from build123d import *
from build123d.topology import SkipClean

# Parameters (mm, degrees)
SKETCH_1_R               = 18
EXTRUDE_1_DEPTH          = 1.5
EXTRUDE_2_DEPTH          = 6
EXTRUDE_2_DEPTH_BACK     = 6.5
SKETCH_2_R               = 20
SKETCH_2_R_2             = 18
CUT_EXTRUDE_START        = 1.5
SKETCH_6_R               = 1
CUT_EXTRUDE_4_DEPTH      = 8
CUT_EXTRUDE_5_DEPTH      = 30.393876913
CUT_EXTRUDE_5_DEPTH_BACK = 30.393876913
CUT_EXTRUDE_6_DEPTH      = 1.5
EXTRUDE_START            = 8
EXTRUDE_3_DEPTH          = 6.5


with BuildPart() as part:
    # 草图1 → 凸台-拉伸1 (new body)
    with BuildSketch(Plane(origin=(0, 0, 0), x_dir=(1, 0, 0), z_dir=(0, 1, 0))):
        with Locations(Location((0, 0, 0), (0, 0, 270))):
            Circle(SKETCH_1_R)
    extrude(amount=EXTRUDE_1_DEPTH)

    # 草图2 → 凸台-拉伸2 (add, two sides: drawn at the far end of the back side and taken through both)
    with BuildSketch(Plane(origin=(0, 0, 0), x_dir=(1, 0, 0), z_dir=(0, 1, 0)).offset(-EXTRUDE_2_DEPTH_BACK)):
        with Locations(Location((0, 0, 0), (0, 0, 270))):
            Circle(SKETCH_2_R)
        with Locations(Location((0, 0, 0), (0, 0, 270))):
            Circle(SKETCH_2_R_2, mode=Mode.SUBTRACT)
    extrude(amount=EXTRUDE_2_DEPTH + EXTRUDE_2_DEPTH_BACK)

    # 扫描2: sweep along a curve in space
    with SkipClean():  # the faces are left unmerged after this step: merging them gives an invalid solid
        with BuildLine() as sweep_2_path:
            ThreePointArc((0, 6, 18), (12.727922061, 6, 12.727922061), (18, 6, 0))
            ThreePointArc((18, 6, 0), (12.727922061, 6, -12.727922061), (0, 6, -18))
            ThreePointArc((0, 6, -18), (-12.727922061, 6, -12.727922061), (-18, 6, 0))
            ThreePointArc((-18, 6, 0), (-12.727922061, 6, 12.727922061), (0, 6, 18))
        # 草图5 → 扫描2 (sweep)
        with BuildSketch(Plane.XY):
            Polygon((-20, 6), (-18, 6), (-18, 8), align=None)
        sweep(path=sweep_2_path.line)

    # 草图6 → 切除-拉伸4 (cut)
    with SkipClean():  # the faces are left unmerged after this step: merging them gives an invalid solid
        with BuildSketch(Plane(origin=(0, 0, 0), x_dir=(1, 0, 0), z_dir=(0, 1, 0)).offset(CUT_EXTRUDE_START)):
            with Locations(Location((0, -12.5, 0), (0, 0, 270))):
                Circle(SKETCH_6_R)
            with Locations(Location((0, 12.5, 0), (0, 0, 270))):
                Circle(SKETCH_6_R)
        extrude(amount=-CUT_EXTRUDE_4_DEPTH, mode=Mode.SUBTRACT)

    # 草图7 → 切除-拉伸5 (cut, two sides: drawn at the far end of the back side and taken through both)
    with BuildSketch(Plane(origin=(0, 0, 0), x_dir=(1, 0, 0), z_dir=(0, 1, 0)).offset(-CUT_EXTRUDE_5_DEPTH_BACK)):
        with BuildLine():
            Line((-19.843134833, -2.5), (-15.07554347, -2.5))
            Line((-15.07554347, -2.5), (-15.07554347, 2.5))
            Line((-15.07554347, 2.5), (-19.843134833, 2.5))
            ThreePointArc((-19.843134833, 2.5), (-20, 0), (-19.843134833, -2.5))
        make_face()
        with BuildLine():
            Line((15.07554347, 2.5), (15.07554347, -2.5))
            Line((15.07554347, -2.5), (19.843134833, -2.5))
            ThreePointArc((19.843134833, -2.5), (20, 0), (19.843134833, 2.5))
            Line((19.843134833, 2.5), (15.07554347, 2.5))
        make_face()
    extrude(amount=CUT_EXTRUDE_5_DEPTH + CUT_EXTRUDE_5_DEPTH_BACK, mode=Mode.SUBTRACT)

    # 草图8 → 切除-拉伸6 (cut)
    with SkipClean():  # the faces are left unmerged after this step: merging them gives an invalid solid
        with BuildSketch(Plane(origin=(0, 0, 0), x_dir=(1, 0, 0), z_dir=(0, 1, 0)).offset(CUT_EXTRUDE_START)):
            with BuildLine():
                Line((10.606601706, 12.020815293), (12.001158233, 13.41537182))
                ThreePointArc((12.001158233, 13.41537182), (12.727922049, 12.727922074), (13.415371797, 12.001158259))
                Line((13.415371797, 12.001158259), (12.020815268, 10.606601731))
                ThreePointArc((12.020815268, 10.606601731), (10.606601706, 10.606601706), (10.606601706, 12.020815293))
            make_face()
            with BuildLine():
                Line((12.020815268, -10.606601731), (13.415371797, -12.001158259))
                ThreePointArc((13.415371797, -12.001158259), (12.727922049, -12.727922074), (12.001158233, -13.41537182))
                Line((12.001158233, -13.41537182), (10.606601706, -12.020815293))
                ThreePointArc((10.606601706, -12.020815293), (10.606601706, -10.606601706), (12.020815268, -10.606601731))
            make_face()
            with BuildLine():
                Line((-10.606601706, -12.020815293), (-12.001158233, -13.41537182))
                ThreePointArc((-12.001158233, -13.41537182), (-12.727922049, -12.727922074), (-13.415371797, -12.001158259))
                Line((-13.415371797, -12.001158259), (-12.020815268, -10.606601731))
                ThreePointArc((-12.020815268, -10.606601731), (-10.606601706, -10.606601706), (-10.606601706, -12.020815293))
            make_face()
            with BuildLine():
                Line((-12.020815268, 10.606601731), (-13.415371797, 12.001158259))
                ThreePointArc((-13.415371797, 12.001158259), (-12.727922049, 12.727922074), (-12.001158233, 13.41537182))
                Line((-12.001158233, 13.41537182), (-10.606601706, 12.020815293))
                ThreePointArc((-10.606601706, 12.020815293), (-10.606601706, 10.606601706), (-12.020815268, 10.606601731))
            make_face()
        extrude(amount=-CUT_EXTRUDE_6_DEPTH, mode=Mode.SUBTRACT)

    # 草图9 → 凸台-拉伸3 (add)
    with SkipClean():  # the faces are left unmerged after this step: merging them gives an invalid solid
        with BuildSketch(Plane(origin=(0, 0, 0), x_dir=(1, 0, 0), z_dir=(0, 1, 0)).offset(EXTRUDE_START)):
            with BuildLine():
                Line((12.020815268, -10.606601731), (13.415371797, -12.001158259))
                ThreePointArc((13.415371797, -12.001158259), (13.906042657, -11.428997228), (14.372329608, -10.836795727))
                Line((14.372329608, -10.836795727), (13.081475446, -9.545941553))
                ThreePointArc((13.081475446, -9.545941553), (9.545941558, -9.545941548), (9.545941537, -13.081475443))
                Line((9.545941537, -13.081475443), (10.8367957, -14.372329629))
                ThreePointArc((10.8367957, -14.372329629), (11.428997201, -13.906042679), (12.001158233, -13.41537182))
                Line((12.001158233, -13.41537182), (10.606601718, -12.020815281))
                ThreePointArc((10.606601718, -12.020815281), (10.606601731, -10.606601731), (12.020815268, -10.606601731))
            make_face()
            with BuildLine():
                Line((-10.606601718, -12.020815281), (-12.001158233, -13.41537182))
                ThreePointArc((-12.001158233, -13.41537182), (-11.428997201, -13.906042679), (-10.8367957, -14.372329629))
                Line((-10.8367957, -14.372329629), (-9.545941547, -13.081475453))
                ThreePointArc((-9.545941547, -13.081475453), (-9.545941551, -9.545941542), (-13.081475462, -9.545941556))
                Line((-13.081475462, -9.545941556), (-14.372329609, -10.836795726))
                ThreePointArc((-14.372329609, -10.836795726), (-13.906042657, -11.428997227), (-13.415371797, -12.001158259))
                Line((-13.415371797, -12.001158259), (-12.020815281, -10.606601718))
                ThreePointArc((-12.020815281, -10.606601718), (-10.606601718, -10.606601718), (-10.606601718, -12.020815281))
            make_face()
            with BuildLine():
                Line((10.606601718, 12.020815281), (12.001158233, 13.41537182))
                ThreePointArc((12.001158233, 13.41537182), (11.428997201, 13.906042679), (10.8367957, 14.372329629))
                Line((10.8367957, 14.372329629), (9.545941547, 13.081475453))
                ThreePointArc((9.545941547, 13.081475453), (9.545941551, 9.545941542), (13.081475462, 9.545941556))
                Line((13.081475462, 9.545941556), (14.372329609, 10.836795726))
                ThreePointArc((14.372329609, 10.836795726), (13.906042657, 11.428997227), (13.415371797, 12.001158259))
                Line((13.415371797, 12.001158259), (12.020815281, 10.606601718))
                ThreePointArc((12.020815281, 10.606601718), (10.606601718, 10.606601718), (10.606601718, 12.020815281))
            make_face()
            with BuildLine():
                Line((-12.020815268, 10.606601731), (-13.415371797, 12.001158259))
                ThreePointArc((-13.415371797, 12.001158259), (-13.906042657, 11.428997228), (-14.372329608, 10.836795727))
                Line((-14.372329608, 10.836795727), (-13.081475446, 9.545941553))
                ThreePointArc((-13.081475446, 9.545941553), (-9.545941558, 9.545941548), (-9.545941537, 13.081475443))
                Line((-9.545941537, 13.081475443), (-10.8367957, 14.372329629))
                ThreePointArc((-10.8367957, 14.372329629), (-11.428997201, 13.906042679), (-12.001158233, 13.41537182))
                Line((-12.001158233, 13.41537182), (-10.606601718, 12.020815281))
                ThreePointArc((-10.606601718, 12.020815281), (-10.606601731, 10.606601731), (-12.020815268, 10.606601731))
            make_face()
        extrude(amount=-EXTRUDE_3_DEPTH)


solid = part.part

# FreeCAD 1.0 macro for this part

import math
import FreeCAD as App
import Part
import Sketcher
from FreeCAD import Vector
Q = App.Units.Quantity


def add_polygon(sketch, points):
    """Adds a closed chain of lines whose ends are joined by coincident constraints."""
    first, n = sketch.GeometryCount, len(points)
    for a, b in zip(points, points[1:] + points[:1]):
        sketch.addGeometry(Part.LineSegment(App.Vector(*a, 0), App.Vector(*b, 0)), False)
    for i in range(n):
        sketch.addConstraint(Sketcher.Constraint("Coincident", first + i, 2, first + (i + 1) % n, 1))

doc = App.newDocument("Part")
body = doc.addObject("PartDesign::Body", "Body")

# Sketch on XZ plane
sketch1 = body.newObject("Sketcher::SketchObject", "Sketch")
sketch1.AttachmentSupport = (doc.getObject("XZ_Plane"), [""])
sketch1.MapMode = "FlatFace"
sketch1.addGeometry(Part.Circle(Vector(0, 0, 0), Vector(0, 0, 1), 18), False)
sketch1.addConstraint([
    Sketcher.Constraint("Coincident", 0, 3, -1, 1),
    Sketcher.Constraint("Diameter", 0, Q("36 mm")),
])
pad1 = body.newObject("PartDesign::Pad", "Pad")
pad1.Profile = sketch1
pad1.Length = 1.5
pad1.Reversed = True

# Sketch on XZ plane
sketch2 = body.newObject("Sketcher::SketchObject", "Sketch001")
sketch2.AttachmentSupport = (doc.getObject("XZ_Plane"), [""])
sketch2.MapMode = "FlatFace"
sketch2.addGeometry([
    Part.Circle(Vector(0, 0, 0), Vector(0, 0, 1), 20),
    Part.Circle(Vector(0, 0, 0), Vector(0, 0, 1), 18),
], False)
sketch2.addConstraint([
    Sketcher.Constraint("Coincident", 0, 3, -1, 1),
    Sketcher.Constraint("Coincident", 1, 3, -1, 1),
    Sketcher.Constraint("Diameter", 0, Q("40 mm")),
    Sketcher.Constraint("Diameter", 1, Q("36 mm")),
])
pad2 = body.newObject("PartDesign::Pad", "Pad001")
pad2.Profile = sketch2
pad2.Type = "TwoLengths"
pad2.Length = 6
pad2.Length2 = 6.5
pad2.Reversed = True

# Sketch on XY plane
sketch3 = body.newObject("Sketcher::SketchObject", "Sketch002")
sketch3.AttachmentSupport = (doc.getObject("XY_Plane"), [""])
sketch3.MapMode = "FlatFace"
add_polygon(sketch3, [(-20, 6), (-18, 6), (-18, 8)])  # lines 0-2
sketch3.addConstraint([
    Sketcher.Constraint("Horizontal", 0),
    Sketcher.Constraint("Vertical", 1),
    Sketcher.Constraint("Equal", 0, 1),
    Sketcher.Constraint("DistanceX", 0, 1, 0, 2, Q("2 mm")),
    Sketcher.Constraint("DistanceX", 0, 2, -1, 1, Q("18 mm")),
    Sketcher.Constraint("DistanceY", -1, 1, 0, 2, Q("6 mm")),
])

# Sketch on XZ plane
sketch4 = body.newObject("Sketcher::SketchObject", "Sketch003")
sketch4.AttachmentSupport = (doc.getObject("XZ_Plane"), [""])
sketch4.MapMode = "FlatFace"
sketch4.AttachmentOffset = App.Placement(Vector(0, 0, -6), App.Rotation())
sketch4.addGeometry([
    Part.ArcOfCircle(Part.Circle(Vector(0, 0, 0), Vector(0, 0, 1), 18), math.radians(0), math.radians(90)),
    Part.ArcOfCircle(Part.Circle(Vector(0, 0, 0), Vector(0, 0, 1), 18), math.radians(-90), math.radians(0)),
    Part.ArcOfCircle(Part.Circle(Vector(0, 0, 0), Vector(0, 0, 1), 18), math.radians(-180), math.radians(-90)),
    Part.ArcOfCircle(Part.Circle(Vector(0, 0, 0), Vector(0, 0, 1), 18), math.radians(90), math.radians(180)),
], False)
sketch4.addConstraint([
    Sketcher.Constraint("Tangent", 0, 1, 1, 2),
    Sketcher.Constraint("Tangent", 1, 1, 2, 2),
    Sketcher.Constraint("Tangent", 2, 1, 3, 2),
    Sketcher.Constraint("Tangent", 3, 1, 0, 2),
    Sketcher.Constraint("Coincident", 0, 3, -1, 1),
    Sketcher.Constraint("Equal", 0, 1),
    Sketcher.Constraint("PointOnObject", 0, 1, -1),
    Sketcher.Constraint("PointOnObject", 1, 1, -2),
    Sketcher.Constraint("PointOnObject", 2, 1, -1),
    Sketcher.Constraint("PointOnObject", 3, 1, -2),
    Sketcher.Constraint("Radius", 0, Q("18 mm")),
])
doc.recompute()

additivepipe = body.newObject("PartDesign::AdditivePipe", "AdditivePipe")
additivepipe.Profile = sketch3
additivepipe.Spine = (sketch4, ["Edge1", "Edge2", "Edge3", "Edge4"])

# Sketch on XZ plane
sketch5 = body.newObject("Sketcher::SketchObject", "Sketch004")
sketch5.AttachmentSupport = (doc.getObject("XZ_Plane"), [""])
sketch5.MapMode = "FlatFace"
sketch5.AttachmentOffset = App.Placement(Vector(0, 0, -1.5), App.Rotation())
sketch5.addGeometry([
    Part.Circle(Vector(0, 12.5, 0), Vector(0, 0, 1), 1),
    Part.Circle(Vector(0, -12.5, 0), Vector(0, 0, 1), 1),
], False)
sketch5.addConstraint([
    Sketcher.Constraint("Equal", 0, 1),
    Sketcher.Constraint("Symmetric", 0, 3, 1, 3, -1, 1),
    Sketcher.Constraint("PointOnObject", 0, 3, -2),
    Sketcher.Constraint("Diameter", 0, Q("2 mm")),
    Sketcher.Constraint("DistanceY", 1, 3, 0, 3, Q("25 mm")),
])
pocket1 = body.newObject("PartDesign::Pocket", "Pocket")
pocket1.Profile = sketch5
pocket1.Length = 8
pocket1.Reversed = True

# Sketch on XZ plane
sketch6 = body.newObject("Sketcher::SketchObject", "Sketch005")
sketch6.AttachmentSupport = (doc.getObject("XZ_Plane"), [""])
sketch6.MapMode = "FlatFace"
sketch6.addGeometry([
    Part.LineSegment(Vector(-19.843135, 2.5, 0), Vector(-15.075543, 2.5, 0)),  # 0
    Part.LineSegment(Vector(-15.075543, 2.5, 0), Vector(-15.075543, -2.5, 0)),  # 1
    Part.LineSegment(Vector(-15.075543, -2.5, 0), Vector(-19.843135, -2.5, 0)),  # 2
    Part.ArcOfCircle(Part.Circle(Vector(0, 0, 0), Vector(0, 0, 1), 20), math.radians(172.819244), math.radians(187.180756)),  # 3
    Part.LineSegment(Vector(15.075543, -2.5, 0), Vector(15.075543, 2.5, 0)),  # 4
    Part.LineSegment(Vector(15.075543, 2.5, 0), Vector(19.843135, 2.5, 0)),  # 5
    Part.ArcOfCircle(Part.Circle(Vector(0, 0, 0), Vector(0, 0, 1), 20), math.radians(-7.180756), math.radians(7.180756)),  # 6
    Part.LineSegment(Vector(19.843135, -2.5, 0), Vector(15.075543, -2.5, 0)),  # 7
], False)
sketch6.addConstraint([
    Sketcher.Constraint("Coincident", 0, 2, 1, 1),
    Sketcher.Constraint("Coincident", 1, 2, 2, 1),
    Sketcher.Constraint("Coincident", 2, 2, 3, 2),
    Sketcher.Constraint("Coincident", 3, 1, 0, 1),
    Sketcher.Constraint("Coincident", 4, 2, 5, 1),
    Sketcher.Constraint("Coincident", 5, 2, 6, 2),
    Sketcher.Constraint("Coincident", 6, 1, 7, 1),
    Sketcher.Constraint("Coincident", 7, 2, 4, 1),
    Sketcher.Constraint("Horizontal", 0),
    Sketcher.Constraint("Vertical", 1),
    Sketcher.Constraint("Horizontal", 2),
    Sketcher.Constraint("Vertical", 4),
    Sketcher.Constraint("Horizontal", 5),
    Sketcher.Constraint("Horizontal", 7),
    Sketcher.Constraint("Coincident", 3, 3, -1, 1),
    Sketcher.Constraint("Coincident", 6, 3, -1, 1),
    Sketcher.Constraint("Equal", 3, 6),
    Sketcher.Constraint("Symmetric", 1, 2, 4, 2, -1, 1),
    Sketcher.Constraint("Horizontal", 3, 1, 4, 2),
    Sketcher.Constraint("Horizontal", 2, 2, 6, 1),
    Sketcher.Constraint("Radius", 3, Q("20 mm")),
    Sketcher.Constraint("DistanceY", 1, 2, 1, 1, Q("5 mm")),
    Sketcher.Constraint("DistanceX", 0, 1, 0, 2, Q("4.767591 mm")),
])
pocket2 = body.newObject("PartDesign::Pocket", "Pocket001")
pocket2.Profile = sketch6
pocket2.Type = "ThroughAll"
pocket2.Midplane = True

# Sketch on XZ plane
sketch7 = body.newObject("Sketcher::SketchObject", "Sketch006")
sketch7.AttachmentSupport = (doc.getObject("XZ_Plane"), [""])
sketch7.MapMode = "FlatFace"
sketch7.AttachmentOffset = App.Placement(Vector(0, 0, -1.5), App.Rotation())
sketch7.addGeometry([
    Part.LineSegment(Vector(12.001158, -13.415372, 0), Vector(10.606602, -12.020815, 0)),  # 0
    Part.ArcOfCircle(Part.Circle(Vector(11.313708, -11.313708, 0), Vector(0, 0, 1), 1), math.radians(44.999999), math.radians(225.000001)),  # 1
    Part.LineSegment(Vector(12.020815, -10.606602, 0), Vector(13.415372, -12.001158, 0)),  # 2
    Part.ArcOfCircle(Part.Circle(Vector(0, 0, 0), Vector(0, 0, 1), 18), math.radians(-48.184739), math.radians(-41.815262)),  # 3
    Part.LineSegment(Vector(13.415372, 12.001158, 0), Vector(12.020815, 10.606602, 0)),  # 4
    Part.ArcOfCircle(Part.Circle(Vector(11.313708, 11.313708, 0), Vector(0, 0, 1), 1), math.radians(134.999999), math.radians(315.000001)),  # 5
    Part.LineSegment(Vector(10.606602, 12.020815, 0), Vector(12.001158, 13.415372, 0)),  # 6
    Part.ArcOfCircle(Part.Circle(Vector(0, 0, 0), Vector(0, 0, 1), 18), math.radians(41.815262), math.radians(48.184739)),  # 7
    Part.LineSegment(Vector(-12.001158, 13.415372, 0), Vector(-10.606602, 12.020815, 0)),  # 8
    Part.ArcOfCircle(Part.Circle(Vector(-11.313708, 11.313708, 0), Vector(0, 0, 1), 1), math.radians(-135.000001), math.radians(45.000001)),  # 9
    Part.LineSegment(Vector(-12.020815, 10.606602, 0), Vector(-13.415372, 12.001158, 0)),  # 10
    Part.ArcOfCircle(Part.Circle(Vector(0, 0, 0), Vector(0, 0, 1), 18), math.radians(131.815261), math.radians(138.184738)),  # 11
    Part.LineSegment(Vector(-13.415372, -12.001158, 0), Vector(-12.020815, -10.606602, 0)),  # 12
    Part.ArcOfCircle(Part.Circle(Vector(-11.313708, -11.313708, 0), Vector(0, 0, 1), 1), math.radians(-45.000001), math.radians(135.000001)),  # 13
    Part.LineSegment(Vector(-10.606602, -12.020815, 0), Vector(-12.001158, -13.415372, 0)),  # 14
    Part.ArcOfCircle(Part.Circle(Vector(0, 0, 0), Vector(0, 0, 1), 18), math.radians(-138.184738), math.radians(-131.815261)),  # 15
], False)
sketch7.addConstraint([
    Sketcher.Constraint("Tangent", 0, 2, 1, 2),
    Sketcher.Constraint("Tangent", 1, 1, 2, 1),
    Sketcher.Constraint("Coincident", 2, 2, 3, 2),
    Sketcher.Constraint("Coincident", 3, 1, 0, 1),
    Sketcher.Constraint("Tangent", 4, 2, 5, 2),
    Sketcher.Constraint("Tangent", 5, 1, 6, 1),
    Sketcher.Constraint("Coincident", 6, 2, 7, 2),
    Sketcher.Constraint("Coincident", 7, 1, 4, 1),
    Sketcher.Constraint("Tangent", 8, 2, 9, 2),
    Sketcher.Constraint("Tangent", 9, 1, 10, 1),
    Sketcher.Constraint("Coincident", 10, 2, 11, 2),
    Sketcher.Constraint("Coincident", 11, 1, 8, 1),
    Sketcher.Constraint("Tangent", 12, 2, 13, 2),
    Sketcher.Constraint("Tangent", 13, 1, 14, 1),
    Sketcher.Constraint("Coincident", 14, 2, 15, 2),
    Sketcher.Constraint("Coincident", 15, 1, 12, 1),
    Sketcher.Constraint("Coincident", 3, 3, -1, 1),
    Sketcher.Constraint("Coincident", 7, 3, -1, 1),
    Sketcher.Constraint("Coincident", 11, 3, -1, 1),
    Sketcher.Constraint("Coincident", 15, 3, -1, 1),
    Sketcher.Constraint("Equal", 1, 5),
    Sketcher.Constraint("Equal", 3, 7),
    Sketcher.Constraint("Equal", 5, 9),
    Sketcher.Constraint("Equal", 7, 11),
    Sketcher.Constraint("Equal", 9, 13),
    Sketcher.Constraint("Equal", 11, 15),
    Sketcher.Constraint("Symmetric", 1, 3, 9, 3, -1, 1),
    Sketcher.Constraint("Symmetric", 5, 3, 13, 3, -1, 1),
    Sketcher.Constraint("Symmetric", 5, 3, 9, 3, -2),
    Sketcher.Constraint("Parallel", 0, 2),
    Sketcher.Constraint("Perpendicular", 2, 4),
    Sketcher.Constraint("Parallel", 4, 6),
    Sketcher.Constraint("Perpendicular", 6, 8),
    Sketcher.Constraint("Parallel", 8, 10),
    Sketcher.Constraint("Perpendicular", 10, 12),
    Sketcher.Constraint("Parallel", 12, 14),
    Sketcher.Constraint("Horizontal", 5, 1, 8, 2),
    Sketcher.Constraint("Equal", 0, 2),
    Sketcher.Constraint("Radius", 1, Q("1 mm")),
    Sketcher.Constraint("Radius", 3, Q("18 mm")),
    Sketcher.Constraint("Distance", 0, Q("1.972201 mm")),
])
pocket3 = body.newObject("PartDesign::Pocket", "Pocket002")
pocket3.Profile = sketch7
pocket3.Length = 1.5
pocket3.Reversed = True

# Sketch on XZ plane
sketch8 = body.newObject("Sketcher::SketchObject", "Sketch007")
sketch8.AttachmentSupport = (doc.getObject("XZ_Plane"), [""])
sketch8.MapMode = "FlatFace"
sketch8.AttachmentOffset = App.Placement(Vector(0, 0, -8), App.Rotation())
sketch8.addGeometry([
    Part.LineSegment(Vector(12.020815, 10.606602, 0), Vector(13.415372, 12.001158, 0)),  # 0
    Part.ArcOfCircle(Part.Circle(Vector(0, 0, 0), Vector(0, 0, 1), 17.999999), math.radians(37.016444), math.radians(41.815262)),  # 1
    Part.LineSegment(Vector(14.37233, 10.836796, 0), Vector(13.081475, 9.545942, 0)),  # 2
    Part.ArcOfCircle(Part.Circle(Vector(11.313709, 11.313709, 0), Vector(0, 0, 1), 2.5), math.radians(135), math.radians(315)),  # 3
    Part.LineSegment(Vector(9.545942, 13.081475, 0), Vector(10.836796, 14.37233, 0)),  # 4
    Part.ArcOfCircle(Part.Circle(Vector(0, 0, 0), Vector(0, 0, 1), 18), math.radians(48.184739), math.radians(52.983556)),  # 5
    Part.LineSegment(Vector(12.001158, 13.415372, 0), Vector(10.606602, 12.020815, 0)),  # 6
    Part.ArcOfCircle(Part.Circle(Vector(11.313708, 11.313709, 0), Vector(0, 0, 1), 1), math.radians(135), math.radians(315)),  # 7
    Part.LineSegment(Vector(-10.606602, 12.020815, 0), Vector(-12.001158, 13.415372, 0)),  # 8
    Part.ArcOfCircle(Part.Circle(Vector(0, 0, 0), Vector(0, 0, 1), 18), math.radians(127.016444), math.radians(131.815261)),  # 9
    Part.LineSegment(Vector(-10.836796, 14.37233, 0), Vector(-9.545942, 13.081475, 0)),  # 10
    Part.ArcOfCircle(Part.Circle(Vector(-11.313708, 11.313708, 0), Vector(0, 0, 1), 2.5), math.radians(-135), math.radians(45)),  # 11
    Part.LineSegment(Vector(-13.081475, 9.545942, 0), Vector(-14.37233, 10.836796, 0)),  # 12
    Part.ArcOfCircle(Part.Circle(Vector(0, 0, 0), Vector(0, 0, 1), 18), math.radians(138.184739), math.radians(142.983556)),  # 13
    Part.LineSegment(Vector(-13.415372, 12.001158, 0), Vector(-12.020815, 10.606602, 0)),  # 14
    Part.ArcOfCircle(Part.Circle(Vector(-11.313709, 11.313709, 0), Vector(0, 0, 1), 1), math.radians(-135), math.radians(45)),  # 15
    Part.LineSegment(Vector(10.606602, -12.020815, 0), Vector(12.001158, -13.415372, 0)),  # 16
    Part.ArcOfCircle(Part.Circle(Vector(0, 0, 0), Vector(0, 0, 1), 18), math.radians(-52.983556), math.radians(-48.184739)),  # 17
    Part.LineSegment(Vector(10.836796, -14.37233, 0), Vector(9.545942, -13.081475, 0)),  # 18
    Part.ArcOfCircle(Part.Circle(Vector(11.313708, -11.313708, 0), Vector(0, 0, 1), 2.5), math.radians(45), math.radians(225)),  # 19
    Part.LineSegment(Vector(13.081475, -9.545942, 0), Vector(14.37233, -10.836796, 0)),  # 20
    Part.ArcOfCircle(Part.Circle(Vector(0, 0, 0), Vector(0, 0, 1), 18), math.radians(-41.815261), math.radians(-37.016444)),  # 21
    Part.LineSegment(Vector(13.415372, -12.001158, 0), Vector(12.020815, -10.606602, 0)),  # 22
    Part.ArcOfCircle(Part.Circle(Vector(11.313709, -11.313709, 0), Vector(0, 0, 1), 1), math.radians(45), math.radians(225)),  # 23
    Part.LineSegment(Vector(-12.020815, -10.606602, 0), Vector(-13.415372, -12.001158, 0)),  # 24
    Part.ArcOfCircle(Part.Circle(Vector(0, 0, 0), Vector(0, 0, 1), 17.999999), math.radians(-142.983556), math.radians(-138.184738)),  # 25
    Part.LineSegment(Vector(-14.37233, -10.836796, 0), Vector(-13.081475, -9.545942, 0)),  # 26
    Part.ArcOfCircle(Part.Circle(Vector(-11.313709, -11.313709, 0), Vector(0, 0, 1), 2.5), math.radians(-45), math.radians(135)),  # 27
    Part.LineSegment(Vector(-9.545942, -13.081475, 0), Vector(-10.836796, -14.37233, 0)),  # 28
    Part.ArcOfCircle(Part.Circle(Vector(0, 0, 0), Vector(0, 0, 1), 18), math.radians(-131.815261), math.radians(-127.016444)),  # 29
    Part.LineSegment(Vector(-12.001158, -13.415372, 0), Vector(-10.606602, -12.020815, 0)),  # 30
    Part.ArcOfCircle(Part.Circle(Vector(-11.313708, -11.313709, 0), Vector(0, 0, 1), 1), math.radians(-45), math.radians(135)),  # 31
], False)
sketch8.addConstraint([
    Sketcher.Constraint("Coincident", 0, 2, 1, 2),
    Sketcher.Constraint("Coincident", 1, 1, 2, 1),
    Sketcher.Constraint("Tangent", 2, 2, 3, 2),
    Sketcher.Constraint("Tangent", 3, 1, 4, 1),
    Sketcher.Constraint("Coincident", 4, 2, 5, 2),
    Sketcher.Constraint("Coincident", 5, 1, 6, 1),
    Sketcher.Constraint("Tangent", 6, 2, 7, 1),
    Sketcher.Constraint("Tangent", 7, 2, 0, 1),
    Sketcher.Constraint("Coincident", 8, 2, 9, 2),
    Sketcher.Constraint("Coincident", 9, 1, 10, 1),
    Sketcher.Constraint("Tangent", 10, 2, 11, 2),
    Sketcher.Constraint("Tangent", 11, 1, 12, 1),
    Sketcher.Constraint("Coincident", 12, 2, 13, 2),
    Sketcher.Constraint("Coincident", 13, 1, 14, 1),
    Sketcher.Constraint("Tangent", 14, 2, 15, 1),
    Sketcher.Constraint("Tangent", 15, 2, 8, 1),
    Sketcher.Constraint("Coincident", 16, 2, 17, 2),
    Sketcher.Constraint("Coincident", 17, 1, 18, 1),
    Sketcher.Constraint("Tangent", 18, 2, 19, 2),
    Sketcher.Constraint("Tangent", 19, 1, 20, 1),
    Sketcher.Constraint("Coincident", 20, 2, 21, 2),
    Sketcher.Constraint("Coincident", 21, 1, 22, 1),
    Sketcher.Constraint("Tangent", 22, 2, 23, 1),
    Sketcher.Constraint("Tangent", 23, 2, 16, 1),
    Sketcher.Constraint("Coincident", 24, 2, 25, 2),
    Sketcher.Constraint("Coincident", 25, 1, 26, 1),
    Sketcher.Constraint("Tangent", 26, 2, 27, 2),
    Sketcher.Constraint("Tangent", 27, 1, 28, 1),
    Sketcher.Constraint("Coincident", 28, 2, 29, 2),
    Sketcher.Constraint("Coincident", 29, 1, 30, 1),
    Sketcher.Constraint("Tangent", 30, 2, 31, 1),
    Sketcher.Constraint("Tangent", 31, 2, 24, 1),
    Sketcher.Constraint("Coincident", 1, 3, -1, 1),
    Sketcher.Constraint("Coincident", 5, 3, -1, 1),
    Sketcher.Constraint("Coincident", 9, 3, -1, 1),
    Sketcher.Constraint("Coincident", 13, 3, -1, 1),
    Sketcher.Constraint("Coincident", 17, 3, -1, 1),
    Sketcher.Constraint("Coincident", 21, 3, -1, 1),
    Sketcher.Constraint("Coincident", 25, 3, -1, 1),
    Sketcher.Constraint("Coincident", 29, 3, -1, 1),
    Sketcher.Constraint("Coincident", 7, 3, 3, 3),
    Sketcher.Constraint("Coincident", 15, 3, 11, 3),
    Sketcher.Constraint("Coincident", 23, 3, 19, 3),
    Sketcher.Constraint("Coincident", 31, 3, 27, 3),
    Sketcher.Constraint("Equal", 1, 5),
    Sketcher.Constraint("Equal", 5, 9),
    Sketcher.Constraint("Equal", 3, 11),
    Sketcher.Constraint("Equal", 9, 13),
    Sketcher.Constraint("Equal", 7, 15),
    Sketcher.Constraint("Equal", 13, 17),
    Sketcher.Constraint("Equal", 11, 19),
    Sketcher.Constraint("Equal", 17, 21),
    Sketcher.Constraint("Equal", 15, 23),
    Sketcher.Constraint("Equal", 21, 25),
    Sketcher.Constraint("Equal", 19, 27),
    Sketcher.Constraint("Equal", 25, 29),
    Sketcher.Constraint("Equal", 23, 31),
    Sketcher.Constraint("Symmetric", 11, 3, 19, 3, -1, 1),
    Sketcher.Constraint("Symmetric", 3, 3, 27, 3, -1, 1),
    Sketcher.Constraint("Symmetric", 3, 3, 11, 3, -2),
    Sketcher.Constraint("Parallel", 0, 2),
    Sketcher.Constraint("Parallel", 2, 4),
    Sketcher.Constraint("Parallel", 4, 6),
    Sketcher.Constraint("Perpendicular", 6, 8),
    Sketcher.Constraint("Parallel", 8, 10),
    Sketcher.Constraint("Parallel", 10, 12),
    Sketcher.Constraint("Parallel", 12, 14),
    Sketcher.Constraint("Parallel", 14, 16),
    Sketcher.Constraint("Parallel", 16, 18),
    Sketcher.Constraint("Parallel", 18, 20),
    Sketcher.Constraint("Parallel", 20, 22),
    Sketcher.Constraint("Perpendicular", 22, 24),
    Sketcher.Constraint("Parallel", 24, 26),
    Sketcher.Constraint("Parallel", 26, 28),
    Sketcher.Constraint("Parallel", 28, 30),
    Sketcher.Constraint("Horizontal", 5, 1, 8, 2),
    Sketcher.Constraint("Equal", 2, 4),
    Sketcher.Constraint("Radius", 1, Q("17.999999 mm")),
    Sketcher.Constraint("Radius", 7, Q("1 mm")),
    Sketcher.Constraint("Radius", 3, Q("2.5 mm")),
    Sketcher.Constraint("Distance", 0, Q("1.972201 mm")),
])
pad3 = body.newObject("PartDesign::Pad", "Pad002")
pad3.Profile = sketch8
pad3.Length = 6.5

doc.recompute()
